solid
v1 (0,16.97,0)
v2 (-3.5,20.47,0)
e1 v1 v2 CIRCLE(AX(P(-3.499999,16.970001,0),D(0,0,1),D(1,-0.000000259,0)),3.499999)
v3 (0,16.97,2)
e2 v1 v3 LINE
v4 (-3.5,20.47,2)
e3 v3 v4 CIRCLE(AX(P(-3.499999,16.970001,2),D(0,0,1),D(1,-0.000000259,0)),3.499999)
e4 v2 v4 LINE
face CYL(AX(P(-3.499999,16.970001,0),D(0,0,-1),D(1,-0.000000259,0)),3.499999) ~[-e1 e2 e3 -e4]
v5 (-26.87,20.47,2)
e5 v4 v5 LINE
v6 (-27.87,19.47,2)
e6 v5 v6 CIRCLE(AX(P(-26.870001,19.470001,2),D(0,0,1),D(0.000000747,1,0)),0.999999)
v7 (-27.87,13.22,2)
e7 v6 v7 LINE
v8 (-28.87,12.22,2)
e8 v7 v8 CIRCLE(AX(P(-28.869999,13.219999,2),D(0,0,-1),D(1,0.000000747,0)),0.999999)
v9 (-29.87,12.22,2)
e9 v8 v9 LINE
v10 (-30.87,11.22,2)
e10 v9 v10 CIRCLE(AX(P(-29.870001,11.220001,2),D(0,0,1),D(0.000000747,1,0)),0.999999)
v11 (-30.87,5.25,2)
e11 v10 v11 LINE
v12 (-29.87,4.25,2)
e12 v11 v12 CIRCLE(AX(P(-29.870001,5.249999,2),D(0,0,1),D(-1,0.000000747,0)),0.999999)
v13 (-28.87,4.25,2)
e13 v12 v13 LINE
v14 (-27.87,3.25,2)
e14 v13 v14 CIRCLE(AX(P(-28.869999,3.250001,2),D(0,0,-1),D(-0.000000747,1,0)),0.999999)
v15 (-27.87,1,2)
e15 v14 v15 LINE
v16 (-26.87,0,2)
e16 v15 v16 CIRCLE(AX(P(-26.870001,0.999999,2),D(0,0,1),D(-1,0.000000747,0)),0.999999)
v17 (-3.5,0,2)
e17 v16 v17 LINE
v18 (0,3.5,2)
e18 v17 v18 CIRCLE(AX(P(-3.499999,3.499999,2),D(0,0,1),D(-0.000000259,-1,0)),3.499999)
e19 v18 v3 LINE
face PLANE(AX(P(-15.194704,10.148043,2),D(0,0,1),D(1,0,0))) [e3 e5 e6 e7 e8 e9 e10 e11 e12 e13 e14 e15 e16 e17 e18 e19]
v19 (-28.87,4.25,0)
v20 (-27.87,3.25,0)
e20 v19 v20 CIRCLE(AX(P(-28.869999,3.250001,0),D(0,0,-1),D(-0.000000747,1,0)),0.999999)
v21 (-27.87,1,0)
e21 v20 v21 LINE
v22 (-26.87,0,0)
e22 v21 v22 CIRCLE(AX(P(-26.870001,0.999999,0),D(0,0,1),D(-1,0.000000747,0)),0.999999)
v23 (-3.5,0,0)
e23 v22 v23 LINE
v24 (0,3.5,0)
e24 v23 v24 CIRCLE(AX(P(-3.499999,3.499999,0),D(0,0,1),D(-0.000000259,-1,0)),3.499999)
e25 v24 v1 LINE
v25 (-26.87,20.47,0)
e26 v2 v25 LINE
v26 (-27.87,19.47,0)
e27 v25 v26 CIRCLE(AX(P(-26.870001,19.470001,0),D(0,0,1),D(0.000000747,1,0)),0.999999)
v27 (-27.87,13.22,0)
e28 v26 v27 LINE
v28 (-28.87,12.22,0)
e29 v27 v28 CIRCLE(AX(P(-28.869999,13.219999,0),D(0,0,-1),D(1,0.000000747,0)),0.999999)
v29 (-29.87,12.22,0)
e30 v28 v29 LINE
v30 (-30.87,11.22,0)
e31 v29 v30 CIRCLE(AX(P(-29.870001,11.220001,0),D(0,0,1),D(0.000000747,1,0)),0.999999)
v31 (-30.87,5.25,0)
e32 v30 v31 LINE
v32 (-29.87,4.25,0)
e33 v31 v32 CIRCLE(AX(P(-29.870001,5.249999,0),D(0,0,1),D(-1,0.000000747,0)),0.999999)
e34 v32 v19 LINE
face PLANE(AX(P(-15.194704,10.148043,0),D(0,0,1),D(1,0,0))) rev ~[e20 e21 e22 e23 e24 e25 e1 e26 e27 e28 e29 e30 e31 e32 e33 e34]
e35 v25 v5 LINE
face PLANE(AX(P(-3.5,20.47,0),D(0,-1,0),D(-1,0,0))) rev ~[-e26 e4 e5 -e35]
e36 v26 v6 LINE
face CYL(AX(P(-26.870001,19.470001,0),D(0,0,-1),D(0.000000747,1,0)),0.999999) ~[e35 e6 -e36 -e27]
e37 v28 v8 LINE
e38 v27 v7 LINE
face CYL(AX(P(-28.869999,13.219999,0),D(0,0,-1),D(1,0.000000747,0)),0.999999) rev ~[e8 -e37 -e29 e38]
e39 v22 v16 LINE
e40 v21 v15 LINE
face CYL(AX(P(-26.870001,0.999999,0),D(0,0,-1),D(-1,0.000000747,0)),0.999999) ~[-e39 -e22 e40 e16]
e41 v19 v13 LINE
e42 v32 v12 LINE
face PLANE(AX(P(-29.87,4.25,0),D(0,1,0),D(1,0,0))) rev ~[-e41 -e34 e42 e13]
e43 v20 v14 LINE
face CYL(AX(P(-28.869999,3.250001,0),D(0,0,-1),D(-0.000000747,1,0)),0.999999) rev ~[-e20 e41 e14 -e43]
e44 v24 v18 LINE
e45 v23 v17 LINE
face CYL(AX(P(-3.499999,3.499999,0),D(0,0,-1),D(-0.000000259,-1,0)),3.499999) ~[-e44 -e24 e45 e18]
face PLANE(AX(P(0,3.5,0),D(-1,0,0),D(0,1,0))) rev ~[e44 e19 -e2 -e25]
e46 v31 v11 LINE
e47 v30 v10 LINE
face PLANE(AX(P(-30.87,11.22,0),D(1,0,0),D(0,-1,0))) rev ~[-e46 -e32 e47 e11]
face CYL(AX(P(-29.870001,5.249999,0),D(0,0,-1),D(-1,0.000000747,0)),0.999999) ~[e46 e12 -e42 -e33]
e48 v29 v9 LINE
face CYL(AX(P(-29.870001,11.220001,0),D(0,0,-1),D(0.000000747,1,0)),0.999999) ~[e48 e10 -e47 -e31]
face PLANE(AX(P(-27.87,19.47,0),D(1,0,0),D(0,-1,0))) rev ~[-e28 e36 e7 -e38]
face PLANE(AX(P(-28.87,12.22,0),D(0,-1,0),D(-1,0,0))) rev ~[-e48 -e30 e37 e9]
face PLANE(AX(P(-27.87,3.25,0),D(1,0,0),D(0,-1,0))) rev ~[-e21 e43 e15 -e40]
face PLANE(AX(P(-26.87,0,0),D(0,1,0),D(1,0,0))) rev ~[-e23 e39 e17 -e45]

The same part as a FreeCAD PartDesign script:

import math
import FreeCAD as App
import Part
import Sketcher

V = App.Vector
Q = App.Units.Quantity

doc = App.newDocument("Part")
body = doc.addObject("PartDesign::Body", "Body")

# Sketch on XY plane
sketch1 = body.newObject("Sketcher::SketchObject", "Sketch")
sketch1.AttachmentSupport = (doc.getObject("XY_Plane"), [""])
sketch1.MapMode = "FlatFace"
sketch1.addGeometry([
    Part.LineSegment(V(-3.5, 20.5, 0), V(-26.9, 20.5, 0)),  # 0
    Part.ArcOfCircle(Part.Circle(V(-26.9, 19.5, 0), V(0, 0, 1), 1), math.radians(90), math.radians(180)),  # 1
    Part.LineSegment(V(-27.9, 19.5, 0), V(-27.9, 13.2, 0)),  # 2
    Part.ArcOfCircle(Part.Circle(V(-28.9, 13.2, 0), V(0, 0, 1), 1), math.radians(-90), math.radians(0)),  # 3
    Part.LineSegment(V(-28.9, 12.2, 0), V(-29.9, 12.2, 0)),  # 4
    Part.ArcOfCircle(Part.Circle(V(-29.9, 11.2, 0), V(0, 0, 1), 1), math.radians(90), math.radians(180)),  # 5
    Part.LineSegment(V(-30.9, 11.2, 0), V(-30.9, 5.2, 0)),  # 6
    Part.ArcOfCircle(Part.Circle(V(-29.9, 5.2, 0), V(0, 0, 1), 1), math.radians(180), math.radians(270)),  # 7
    Part.LineSegment(V(-29.9, 4.2, 0), V(-28.9, 4.2, 0)),  # 8
    Part.ArcOfCircle(Part.Circle(V(-28.9, 3.3, 0), V(0, 0, 1), 1), math.radians(0), math.radians(90)),  # 9
    Part.LineSegment(V(-27.9, 3.2, 0), V(-27.9, 1, 0)),  # 10
    Part.ArcOfCircle(Part.Circle(V(-26.9, 1, 0), V(0, 0, 1), 1), math.radians(180), math.radians(270)),  # 11
    Part.LineSegment(V(-26.9, 0, 0), V(-3.5, 0, 0)),  # 12
    Part.ArcOfCircle(Part.Circle(V(-3.5, 3.5, 0), V(0, 0, 1), 3.5), math.radians(-90), math.radians(0)),  # 13
    Part.LineSegment(V(0, 3.5, 0), V(0, 17, 0)),  # 14
    Part.ArcOfCircle(Part.Circle(V(-3.5, 17, 0), V(0, 0, 1), 3.5), math.radians(0), math.radians(90)),  # 15
], False)
sketch1.addConstraint([
    Sketcher.Constraint("Tangent", 0, 2, 1, 1),
    Sketcher.Constraint("Tangent", 1, 2, 2, 1),
    Sketcher.Constraint("Tangent", 2, 2, 3, 2),
    Sketcher.Constraint("Tangent", 3, 1, 4, 1),
    Sketcher.Constraint("Tangent", 4, 2, 5, 1),
    Sketcher.Constraint("Tangent", 5, 2, 6, 1),
    Sketcher.Constraint("Tangent", 6, 2, 7, 1),
    Sketcher.Constraint("Tangent", 7, 2, 8, 1),
    Sketcher.Constraint("Tangent", 8, 2, 9, 2),
    Sketcher.Constraint("Tangent", 9, 1, 10, 1),
    Sketcher.Constraint("Tangent", 10, 2, 11, 1),
    Sketcher.Constraint("Tangent", 11, 2, 12, 1),
    Sketcher.Constraint("Tangent", 12, 2, 13, 1),
    Sketcher.Constraint("Tangent", 13, 2, 14, 1),
    Sketcher.Constraint("Tangent", 14, 2, 15, 1),
    Sketcher.Constraint("Tangent", 15, 2, 0, 1),
    Sketcher.Constraint("Horizontal", 0),
    Sketcher.Constraint("Vertical", 2),
    Sketcher.Constraint("Horizontal", 4),
    Sketcher.Constraint("Vertical", 6),
    Sketcher.Constraint("Horizontal", 8),
    Sketcher.Constraint("Vertical", 10),
    Sketcher.Constraint("Horizontal", 12),
    Sketcher.Constraint("Vertical", 14),
    Sketcher.Constraint("Equal", 1, 3),
    Sketcher.Constraint("Equal", 3, 5),
    Sketcher.Constraint("Equal", 5, 7),
    Sketcher.Constraint("Equal", 7, 9),
    Sketcher.Constraint("Equal", 9, 11),
    Sketcher.Constraint("Equal", 13, 15),
    Sketcher.Constraint("PointOnObject", 11, 2, -1),
    Sketcher.Constraint("PointOnObject", 13, 2, -2),
    Sketcher.Constraint("Vertical", 3, 3, 9, 3),
    Sketcher.Constraint("Radius", 1, Q("0.999999 mm")),
    Sketcher.Constraint("Radius", 13, Q("3.499999 mm")),
    Sketcher.Constraint("DistanceX", 4, 2, 4, 1, Q("1 mm")),
    Sketcher.Constraint("DistanceX", 0, 2, 0, 1, Q("23.37 mm")),
    Sketcher.Constraint("DistanceY", 2, 2, 2, 1, Q("6.25 mm")),
    Sketcher.Constraint("DistanceY", 6, 2, 6, 1, Q("5.97 mm")),
    Sketcher.Constraint("DistanceY", 10, 2, 10, 1, Q("2.25 mm")),
])
pad1 = body.newObject("PartDesign::Pad", "Pad")
pad1.Profile = sketch1
pad1.Length = 2

doc.recompute()
